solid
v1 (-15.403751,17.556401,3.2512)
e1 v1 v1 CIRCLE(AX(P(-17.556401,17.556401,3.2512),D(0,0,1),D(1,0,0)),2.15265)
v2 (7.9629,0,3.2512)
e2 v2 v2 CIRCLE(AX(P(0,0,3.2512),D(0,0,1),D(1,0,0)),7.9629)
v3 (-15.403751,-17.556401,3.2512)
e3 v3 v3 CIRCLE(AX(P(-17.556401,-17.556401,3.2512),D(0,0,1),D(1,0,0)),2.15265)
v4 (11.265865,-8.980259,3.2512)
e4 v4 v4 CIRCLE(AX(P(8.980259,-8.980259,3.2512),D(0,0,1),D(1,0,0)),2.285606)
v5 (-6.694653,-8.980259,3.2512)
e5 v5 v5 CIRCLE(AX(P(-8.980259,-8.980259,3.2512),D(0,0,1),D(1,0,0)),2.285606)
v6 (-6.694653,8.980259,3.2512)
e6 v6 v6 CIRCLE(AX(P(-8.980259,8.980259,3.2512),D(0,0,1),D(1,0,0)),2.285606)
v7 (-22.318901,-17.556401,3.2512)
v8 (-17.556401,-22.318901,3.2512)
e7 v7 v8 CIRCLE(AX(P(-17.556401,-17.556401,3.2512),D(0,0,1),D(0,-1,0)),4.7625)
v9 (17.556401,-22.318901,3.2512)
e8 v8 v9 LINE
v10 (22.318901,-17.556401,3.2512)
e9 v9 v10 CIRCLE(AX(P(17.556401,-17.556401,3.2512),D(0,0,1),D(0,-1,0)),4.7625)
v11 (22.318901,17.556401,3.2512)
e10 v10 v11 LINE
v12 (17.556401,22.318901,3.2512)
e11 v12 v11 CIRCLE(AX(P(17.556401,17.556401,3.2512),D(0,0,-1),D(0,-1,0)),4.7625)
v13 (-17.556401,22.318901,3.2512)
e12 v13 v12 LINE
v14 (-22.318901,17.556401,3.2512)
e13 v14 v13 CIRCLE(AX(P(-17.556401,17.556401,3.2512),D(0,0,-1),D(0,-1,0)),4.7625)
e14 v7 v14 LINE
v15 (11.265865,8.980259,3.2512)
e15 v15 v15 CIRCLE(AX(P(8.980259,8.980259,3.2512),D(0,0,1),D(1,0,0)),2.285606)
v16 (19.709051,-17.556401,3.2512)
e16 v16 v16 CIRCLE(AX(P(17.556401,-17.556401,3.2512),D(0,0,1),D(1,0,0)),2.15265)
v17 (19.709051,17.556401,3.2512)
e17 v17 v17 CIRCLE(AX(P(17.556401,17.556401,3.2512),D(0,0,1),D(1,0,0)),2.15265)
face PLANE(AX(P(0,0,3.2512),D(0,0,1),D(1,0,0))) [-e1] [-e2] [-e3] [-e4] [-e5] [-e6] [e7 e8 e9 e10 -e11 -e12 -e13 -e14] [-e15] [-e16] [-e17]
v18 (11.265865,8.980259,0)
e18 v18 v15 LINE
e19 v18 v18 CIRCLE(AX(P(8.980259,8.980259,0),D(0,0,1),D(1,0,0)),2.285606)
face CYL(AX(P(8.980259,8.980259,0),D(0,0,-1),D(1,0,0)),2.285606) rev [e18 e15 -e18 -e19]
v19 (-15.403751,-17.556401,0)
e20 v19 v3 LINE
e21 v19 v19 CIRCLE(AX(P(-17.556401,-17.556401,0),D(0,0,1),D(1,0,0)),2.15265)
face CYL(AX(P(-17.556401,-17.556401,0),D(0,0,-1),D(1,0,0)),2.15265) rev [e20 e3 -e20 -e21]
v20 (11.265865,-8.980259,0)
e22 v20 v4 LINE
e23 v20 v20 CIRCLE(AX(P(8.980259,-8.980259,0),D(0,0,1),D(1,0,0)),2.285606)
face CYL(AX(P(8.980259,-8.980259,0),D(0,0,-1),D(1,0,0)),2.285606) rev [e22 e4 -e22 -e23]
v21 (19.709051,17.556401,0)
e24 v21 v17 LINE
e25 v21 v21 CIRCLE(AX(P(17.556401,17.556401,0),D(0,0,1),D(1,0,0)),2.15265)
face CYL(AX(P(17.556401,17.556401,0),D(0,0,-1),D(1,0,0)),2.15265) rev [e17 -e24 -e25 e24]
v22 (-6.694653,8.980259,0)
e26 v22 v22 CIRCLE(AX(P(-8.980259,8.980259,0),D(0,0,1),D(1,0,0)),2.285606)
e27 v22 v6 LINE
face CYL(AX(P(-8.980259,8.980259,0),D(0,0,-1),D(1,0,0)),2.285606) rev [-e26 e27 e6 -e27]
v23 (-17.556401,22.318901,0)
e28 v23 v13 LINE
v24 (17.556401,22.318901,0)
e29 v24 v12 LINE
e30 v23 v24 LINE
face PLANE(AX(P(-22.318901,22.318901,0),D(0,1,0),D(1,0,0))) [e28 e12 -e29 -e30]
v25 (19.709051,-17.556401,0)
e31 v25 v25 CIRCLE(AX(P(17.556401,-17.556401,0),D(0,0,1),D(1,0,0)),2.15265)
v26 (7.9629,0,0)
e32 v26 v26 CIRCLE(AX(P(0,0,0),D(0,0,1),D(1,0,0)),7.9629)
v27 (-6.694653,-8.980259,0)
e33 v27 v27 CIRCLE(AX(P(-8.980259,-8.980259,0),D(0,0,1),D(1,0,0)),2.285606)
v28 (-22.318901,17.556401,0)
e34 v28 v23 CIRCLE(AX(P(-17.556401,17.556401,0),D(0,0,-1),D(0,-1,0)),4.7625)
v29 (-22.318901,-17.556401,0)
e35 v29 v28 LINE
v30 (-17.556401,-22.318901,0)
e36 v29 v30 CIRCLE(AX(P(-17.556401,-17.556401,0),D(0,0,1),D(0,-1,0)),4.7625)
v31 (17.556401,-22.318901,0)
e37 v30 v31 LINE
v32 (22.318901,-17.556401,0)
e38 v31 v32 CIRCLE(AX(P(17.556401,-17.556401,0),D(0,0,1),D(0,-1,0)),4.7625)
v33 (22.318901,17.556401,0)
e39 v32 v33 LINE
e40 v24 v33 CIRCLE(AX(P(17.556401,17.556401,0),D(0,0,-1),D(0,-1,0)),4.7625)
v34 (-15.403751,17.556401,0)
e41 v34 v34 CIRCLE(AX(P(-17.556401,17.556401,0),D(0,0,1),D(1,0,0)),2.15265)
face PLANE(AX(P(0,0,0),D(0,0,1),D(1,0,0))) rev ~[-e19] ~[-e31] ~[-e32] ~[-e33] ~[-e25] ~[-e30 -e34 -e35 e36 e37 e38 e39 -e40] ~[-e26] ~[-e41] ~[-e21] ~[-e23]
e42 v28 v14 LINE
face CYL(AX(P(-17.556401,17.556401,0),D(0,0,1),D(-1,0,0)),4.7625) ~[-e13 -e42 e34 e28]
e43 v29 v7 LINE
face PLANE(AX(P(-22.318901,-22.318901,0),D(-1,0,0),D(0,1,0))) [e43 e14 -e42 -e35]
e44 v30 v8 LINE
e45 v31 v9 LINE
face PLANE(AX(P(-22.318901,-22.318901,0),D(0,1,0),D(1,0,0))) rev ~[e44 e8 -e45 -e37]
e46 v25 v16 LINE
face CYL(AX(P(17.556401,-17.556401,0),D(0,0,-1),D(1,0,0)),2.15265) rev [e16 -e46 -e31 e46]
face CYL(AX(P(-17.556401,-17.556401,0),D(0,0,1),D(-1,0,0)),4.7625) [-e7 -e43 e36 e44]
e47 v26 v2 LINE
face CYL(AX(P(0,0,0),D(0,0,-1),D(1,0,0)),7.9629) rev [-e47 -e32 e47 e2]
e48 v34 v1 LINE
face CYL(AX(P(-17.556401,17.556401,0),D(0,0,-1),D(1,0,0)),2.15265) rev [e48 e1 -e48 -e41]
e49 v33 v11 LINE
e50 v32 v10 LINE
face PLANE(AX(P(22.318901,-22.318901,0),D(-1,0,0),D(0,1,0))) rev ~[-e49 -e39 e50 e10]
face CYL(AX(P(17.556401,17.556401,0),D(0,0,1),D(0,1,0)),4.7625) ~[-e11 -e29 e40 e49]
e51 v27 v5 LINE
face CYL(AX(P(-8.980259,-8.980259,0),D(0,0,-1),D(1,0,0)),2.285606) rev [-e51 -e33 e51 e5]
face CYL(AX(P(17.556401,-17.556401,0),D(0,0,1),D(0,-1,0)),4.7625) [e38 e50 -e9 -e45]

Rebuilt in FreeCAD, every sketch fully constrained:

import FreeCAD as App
import Part
import Sketcher
from FreeCAD import Vector
Q = App.Units.Quantity


def edges_at(feature, points):
    """Names of the edges that pass closest to the given points."""
    edges = feature.Shape.Edges
    near = lambda p: min(range(len(edges)), key=lambda i: edges[i].distToShape(Part.Vertex(*p))[0])
    return sorted({f"Edge{near(p) + 1}" for p in points})

doc = App.newDocument("Part")
body = doc.addObject("PartDesign::Body", "Body")

# Sketch on XY plane
sketch1 = body.newObject("Sketcher::SketchObject", "Sketch")
sketch1.AttachmentSupport = (doc.getObject("XY_Plane"), [""])
sketch1.MapMode = "FlatFace"
sketch1.addGeometry(Part.LineSegment(Vector(-22.318901, 22.318901, 0), Vector(-22.318901, -22.318901, 0)), False)
sketch1.addGeometry(Part.LineSegment(Vector(-22.318901, -22.318901, 0), Vector(22.318901, -22.318901, 0)), False)
sketch1.addGeometry(Part.LineSegment(Vector(22.318901, -22.318901, 0), Vector(22.318901, 22.318901, 0)), False)
sketch1.addGeometry(Part.LineSegment(Vector(22.318901, 22.318901, 0), Vector(-22.318901, 22.318901, 0)), False)
sketch1.addGeometry(Part.Circle(Vector(-17.556401, -17.556401, 0), Vector(0, 0, 1), 2.15265), False)
sketch1.addGeometry(Part.Circle(Vector(-8.980259, -8.980259, 0), Vector(0, 0, 1), 2.285606), False)
sketch1.addGeometry(Part.Circle(Vector(0, 0, 0), Vector(0, 0, 1), 7.9629), False)
sketch1.addGeometry(Part.Circle(Vector(17.556401, -17.556401, 0), Vector(0, 0, 1), 2.15265), False)
sketch1.addGeometry(Part.Circle(Vector(8.980259, -8.980259, 0), Vector(0, 0, 1), 2.285606), False)
sketch1.addGeometry(Part.Circle(Vector(-8.980259, 8.980259, 0), Vector(0, 0, 1), 2.285606), False)
sketch1.addGeometry(Part.Circle(Vector(-17.556401, 17.556401, 0), Vector(0, 0, 1), 2.15265), False)
sketch1.addGeometry(Part.Circle(Vector(8.980259, 8.980259, 0), Vector(0, 0, 1), 2.285606), False)
sketch1.addGeometry(Part.Circle(Vector(17.556401, 17.556401, 0), Vector(0, 0, 1), 2.15265), False)
sketch1.addConstraint(Sketcher.Constraint("Coincident", 0, 2, 1, 1))
sketch1.addConstraint(Sketcher.Constraint("Coincident", 1, 2, 2, 1))
sketch1.addConstraint(Sketcher.Constraint("Coincident", 2, 2, 3, 1))
sketch1.addConstraint(Sketcher.Constraint("Coincident", 3, 2, 0, 1))
sketch1.addConstraint(Sketcher.Constraint("Vertical", 0))
sketch1.addConstraint(Sketcher.Constraint("Horizontal", 1))
sketch1.addConstraint(Sketcher.Constraint("Vertical", 2))
sketch1.addConstraint(Sketcher.Constraint("Horizontal", 3))
sketch1.addConstraint(Sketcher.Constraint("Coincident", 6, 3, -1, 1))
sketch1.addConstraint(Sketcher.Constraint("Equal", 4, 7))
sketch1.addConstraint(Sketcher.Constraint("Equal", 5, 8))
sketch1.addConstraint(Sketcher.Constraint("Equal", 8, 9))
sketch1.addConstraint(Sketcher.Constraint("Equal", 7, 10))
sketch1.addConstraint(Sketcher.Constraint("Equal", 9, 11))
sketch1.addConstraint(Sketcher.Constraint("Equal", 10, 12))
sketch1.addConstraint(Sketcher.Constraint("Symmetric", 8, 3, 9, 3, -1, 1))
sketch1.addConstraint(Sketcher.Constraint("Symmetric", 7, 3, 10, 3, -1, 1))
sketch1.addConstraint(Sketcher.Constraint("Symmetric", 5, 3, 11, 3, -1, 1))
sketch1.addConstraint(Sketcher.Constraint("Symmetric", 4, 3, 12, 3, -1, 1))
sketch1.addConstraint(Sketcher.Constraint("Symmetric", 0, 2, 2, 2, -1, 1))
sketch1.addConstraint(Sketcher.Constraint("Symmetric", 4, 3, 7, 3, -2))
sketch1.addConstraint(Sketcher.Constraint("Symmetric", 5, 3, 8, 3, -2))
sketch1.addConstraint(Sketcher.Constraint("Equal", 3, 0))
sketch1.addConstraint(Sketcher.Constraint("Diameter", 6, Q("0.627 in")))
sketch1.addConstraint(Sketcher.Constraint("Diameter", 4, Q("0.1695 in")))
sketch1.addConstraint(Sketcher.Constraint("DistanceX", 0, 2, 4, 3, Q("0.1875 in")))
sketch1.addConstraint(Sketcher.Constraint("DistanceY", 0, 2, 4, 3, Q("0.1875 in")))
sketch1.addConstraint(Sketcher.Constraint("Diameter", 5, Q("4.571212 mm")))
sketch1.addConstraint(Sketcher.Constraint("DistanceX", 4, 3, -1, 1, Q("17.556401 mm")))
sketch1.addConstraint(Sketcher.Constraint("DistanceX", 5, 3, -1, 1, Q("8.980259 mm")))
sketch1.addConstraint(Sketcher.Constraint("DistanceY", 5, 3, -1, 1, Q("8.980259 mm")))
pad1 = body.newObject("PartDesign::Pad", "Pad")
pad1.Profile = sketch1
pad1.Length = Q("0.128 in")
doc.recompute()

fillet = body.newObject("PartDesign::Fillet", "Fillet")
fillet.Base = (pad1, edges_at(pad1, [
    (-22.319, -22.319, 1.626),
    (22.319, -22.319, 1.626),
    (22.319, 22.319, 1.626),
    (-22.319, 22.319, 1.626),
]))
fillet.Radius = Q("0.1875 in")

doc.recompute()
